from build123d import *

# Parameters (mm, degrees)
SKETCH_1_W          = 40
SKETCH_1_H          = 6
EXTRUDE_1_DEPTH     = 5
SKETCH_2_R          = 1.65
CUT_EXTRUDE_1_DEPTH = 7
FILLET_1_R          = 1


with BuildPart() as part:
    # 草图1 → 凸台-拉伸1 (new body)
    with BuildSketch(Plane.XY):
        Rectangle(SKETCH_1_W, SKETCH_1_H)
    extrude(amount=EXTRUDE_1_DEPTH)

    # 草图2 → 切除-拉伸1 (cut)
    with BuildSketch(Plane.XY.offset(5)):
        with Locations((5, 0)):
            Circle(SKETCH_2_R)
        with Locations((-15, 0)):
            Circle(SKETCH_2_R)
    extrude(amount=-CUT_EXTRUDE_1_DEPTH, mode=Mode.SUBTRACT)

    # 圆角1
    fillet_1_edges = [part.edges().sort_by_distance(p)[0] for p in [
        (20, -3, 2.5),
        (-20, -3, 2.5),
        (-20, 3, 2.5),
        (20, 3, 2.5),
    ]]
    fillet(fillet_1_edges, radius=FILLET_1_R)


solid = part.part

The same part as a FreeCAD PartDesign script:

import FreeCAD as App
import Part
import Sketcher

V = App.Vector


def edges_at(feature, points):
    """Names of the edges that pass closest to the given points."""
    edges = feature.Shape.Edges
    near = lambda p: min(range(len(edges)), key=lambda i: edges[i].distToShape(Part.Vertex(*p))[0])
    return sorted({f"Edge{near(p) + 1}" for p in points})


def add_polygon(sketch, points):
    """Adds a closed chain of lines whose ends are joined by coincident constraints."""
    first, n = sketch.GeometryCount, len(points)
    for a, b in zip(points, points[1:] + points[:1]):
        sketch.addGeometry(Part.LineSegment(App.Vector(*a, 0), App.Vector(*b, 0)), False)
    for i in range(n):
        sketch.addConstraint(Sketcher.Constraint("Coincident", first + i, 2, first + (i + 1) % n, 1))

doc = App.newDocument("Part")
body = doc.addObject("PartDesign::Body", "Body")

# Sketch on XY plane
sketch1 = body.newObject("Sketcher::SketchObject", "Sketch")
sketch1.AttachmentSupport = (doc.getObject("XY_Plane"), [""])
sketch1.MapMode = "FlatFace"
add_polygon(sketch1, [(-20, 3), (-20, -3), (20, -3), (20, 3)])  # lines 0-3
sketch1.addConstraint(Sketcher.Constraint("Vertical", 0))
sketch1.addConstraint(Sketcher.Constraint("Horizontal", 1))
sketch1.addConstraint(Sketcher.Constraint("Vertical", 2))
sketch1.addConstraint(Sketcher.Constraint("Horizontal", 3))
sketch1.addConstraint(Sketcher.Constraint("Symmetric", 0, 2, 2, 2, -1, 1))
sketch1.addConstraint(Sketcher.Constraint("DistanceX", 1, 1, 1, 2, 40.0))
sketch1.addConstraint(Sketcher.Constraint("DistanceY", 0, 2, 0, 1, 6.0))
pad1 = body.newObject("PartDesign::Pad", "Pad")
pad1.Profile = sketch1
pad1.Length = 5

# Sketch on XY plane
sketch2 = body.newObject("Sketcher::SketchObject", "Sketch001")
sketch2.AttachmentSupport = (doc.getObject("XY_Plane"), [""])
sketch2.MapMode = "FlatFace"
sketch2.AttachmentOffset = App.Placement(V(0, 0, 5), App.Rotation())
sketch2.addGeometry(Part.Circle(V(5, 0, 0), V(0, 0, 1), 1.6), False)
sketch2.addGeometry(Part.Circle(V(-15, 0, 0), V(0, 0, 1), 1.6), False)
sketch2.addConstraint(Sketcher.Constraint("Equal", 0, 1))
sketch2.addConstraint(Sketcher.Constraint("PointOnObject", 0, 3, -1))
sketch2.addConstraint(Sketcher.Constraint("PointOnObject", 1, 3, -1))
sketch2.addConstraint(Sketcher.Constraint("Diameter", 0, 3.3))
sketch2.addConstraint(Sketcher.Constraint("DistanceX", -1, 1, 0, 3, 5.0))
sketch2.addConstraint(Sketcher.Constraint("DistanceX", 1, 3, -1, 1, 15.0))
pocket1 = body.newObject("PartDesign::Pocket", "Pocket")
pocket1.Profile = sketch2
pocket1.Length = 7
doc.recompute()

fillet = body.newObject("PartDesign::Fillet", "Fillet")
fillet.Base = (pocket1, edges_at(pocket1, [
    (20, -3, 2.5),
    (-20, -3, 2.5),
    (-20, 3, 2.5),
    (20, 3, 2.5),
]))
fillet.Radius = 1

doc.recompute()
